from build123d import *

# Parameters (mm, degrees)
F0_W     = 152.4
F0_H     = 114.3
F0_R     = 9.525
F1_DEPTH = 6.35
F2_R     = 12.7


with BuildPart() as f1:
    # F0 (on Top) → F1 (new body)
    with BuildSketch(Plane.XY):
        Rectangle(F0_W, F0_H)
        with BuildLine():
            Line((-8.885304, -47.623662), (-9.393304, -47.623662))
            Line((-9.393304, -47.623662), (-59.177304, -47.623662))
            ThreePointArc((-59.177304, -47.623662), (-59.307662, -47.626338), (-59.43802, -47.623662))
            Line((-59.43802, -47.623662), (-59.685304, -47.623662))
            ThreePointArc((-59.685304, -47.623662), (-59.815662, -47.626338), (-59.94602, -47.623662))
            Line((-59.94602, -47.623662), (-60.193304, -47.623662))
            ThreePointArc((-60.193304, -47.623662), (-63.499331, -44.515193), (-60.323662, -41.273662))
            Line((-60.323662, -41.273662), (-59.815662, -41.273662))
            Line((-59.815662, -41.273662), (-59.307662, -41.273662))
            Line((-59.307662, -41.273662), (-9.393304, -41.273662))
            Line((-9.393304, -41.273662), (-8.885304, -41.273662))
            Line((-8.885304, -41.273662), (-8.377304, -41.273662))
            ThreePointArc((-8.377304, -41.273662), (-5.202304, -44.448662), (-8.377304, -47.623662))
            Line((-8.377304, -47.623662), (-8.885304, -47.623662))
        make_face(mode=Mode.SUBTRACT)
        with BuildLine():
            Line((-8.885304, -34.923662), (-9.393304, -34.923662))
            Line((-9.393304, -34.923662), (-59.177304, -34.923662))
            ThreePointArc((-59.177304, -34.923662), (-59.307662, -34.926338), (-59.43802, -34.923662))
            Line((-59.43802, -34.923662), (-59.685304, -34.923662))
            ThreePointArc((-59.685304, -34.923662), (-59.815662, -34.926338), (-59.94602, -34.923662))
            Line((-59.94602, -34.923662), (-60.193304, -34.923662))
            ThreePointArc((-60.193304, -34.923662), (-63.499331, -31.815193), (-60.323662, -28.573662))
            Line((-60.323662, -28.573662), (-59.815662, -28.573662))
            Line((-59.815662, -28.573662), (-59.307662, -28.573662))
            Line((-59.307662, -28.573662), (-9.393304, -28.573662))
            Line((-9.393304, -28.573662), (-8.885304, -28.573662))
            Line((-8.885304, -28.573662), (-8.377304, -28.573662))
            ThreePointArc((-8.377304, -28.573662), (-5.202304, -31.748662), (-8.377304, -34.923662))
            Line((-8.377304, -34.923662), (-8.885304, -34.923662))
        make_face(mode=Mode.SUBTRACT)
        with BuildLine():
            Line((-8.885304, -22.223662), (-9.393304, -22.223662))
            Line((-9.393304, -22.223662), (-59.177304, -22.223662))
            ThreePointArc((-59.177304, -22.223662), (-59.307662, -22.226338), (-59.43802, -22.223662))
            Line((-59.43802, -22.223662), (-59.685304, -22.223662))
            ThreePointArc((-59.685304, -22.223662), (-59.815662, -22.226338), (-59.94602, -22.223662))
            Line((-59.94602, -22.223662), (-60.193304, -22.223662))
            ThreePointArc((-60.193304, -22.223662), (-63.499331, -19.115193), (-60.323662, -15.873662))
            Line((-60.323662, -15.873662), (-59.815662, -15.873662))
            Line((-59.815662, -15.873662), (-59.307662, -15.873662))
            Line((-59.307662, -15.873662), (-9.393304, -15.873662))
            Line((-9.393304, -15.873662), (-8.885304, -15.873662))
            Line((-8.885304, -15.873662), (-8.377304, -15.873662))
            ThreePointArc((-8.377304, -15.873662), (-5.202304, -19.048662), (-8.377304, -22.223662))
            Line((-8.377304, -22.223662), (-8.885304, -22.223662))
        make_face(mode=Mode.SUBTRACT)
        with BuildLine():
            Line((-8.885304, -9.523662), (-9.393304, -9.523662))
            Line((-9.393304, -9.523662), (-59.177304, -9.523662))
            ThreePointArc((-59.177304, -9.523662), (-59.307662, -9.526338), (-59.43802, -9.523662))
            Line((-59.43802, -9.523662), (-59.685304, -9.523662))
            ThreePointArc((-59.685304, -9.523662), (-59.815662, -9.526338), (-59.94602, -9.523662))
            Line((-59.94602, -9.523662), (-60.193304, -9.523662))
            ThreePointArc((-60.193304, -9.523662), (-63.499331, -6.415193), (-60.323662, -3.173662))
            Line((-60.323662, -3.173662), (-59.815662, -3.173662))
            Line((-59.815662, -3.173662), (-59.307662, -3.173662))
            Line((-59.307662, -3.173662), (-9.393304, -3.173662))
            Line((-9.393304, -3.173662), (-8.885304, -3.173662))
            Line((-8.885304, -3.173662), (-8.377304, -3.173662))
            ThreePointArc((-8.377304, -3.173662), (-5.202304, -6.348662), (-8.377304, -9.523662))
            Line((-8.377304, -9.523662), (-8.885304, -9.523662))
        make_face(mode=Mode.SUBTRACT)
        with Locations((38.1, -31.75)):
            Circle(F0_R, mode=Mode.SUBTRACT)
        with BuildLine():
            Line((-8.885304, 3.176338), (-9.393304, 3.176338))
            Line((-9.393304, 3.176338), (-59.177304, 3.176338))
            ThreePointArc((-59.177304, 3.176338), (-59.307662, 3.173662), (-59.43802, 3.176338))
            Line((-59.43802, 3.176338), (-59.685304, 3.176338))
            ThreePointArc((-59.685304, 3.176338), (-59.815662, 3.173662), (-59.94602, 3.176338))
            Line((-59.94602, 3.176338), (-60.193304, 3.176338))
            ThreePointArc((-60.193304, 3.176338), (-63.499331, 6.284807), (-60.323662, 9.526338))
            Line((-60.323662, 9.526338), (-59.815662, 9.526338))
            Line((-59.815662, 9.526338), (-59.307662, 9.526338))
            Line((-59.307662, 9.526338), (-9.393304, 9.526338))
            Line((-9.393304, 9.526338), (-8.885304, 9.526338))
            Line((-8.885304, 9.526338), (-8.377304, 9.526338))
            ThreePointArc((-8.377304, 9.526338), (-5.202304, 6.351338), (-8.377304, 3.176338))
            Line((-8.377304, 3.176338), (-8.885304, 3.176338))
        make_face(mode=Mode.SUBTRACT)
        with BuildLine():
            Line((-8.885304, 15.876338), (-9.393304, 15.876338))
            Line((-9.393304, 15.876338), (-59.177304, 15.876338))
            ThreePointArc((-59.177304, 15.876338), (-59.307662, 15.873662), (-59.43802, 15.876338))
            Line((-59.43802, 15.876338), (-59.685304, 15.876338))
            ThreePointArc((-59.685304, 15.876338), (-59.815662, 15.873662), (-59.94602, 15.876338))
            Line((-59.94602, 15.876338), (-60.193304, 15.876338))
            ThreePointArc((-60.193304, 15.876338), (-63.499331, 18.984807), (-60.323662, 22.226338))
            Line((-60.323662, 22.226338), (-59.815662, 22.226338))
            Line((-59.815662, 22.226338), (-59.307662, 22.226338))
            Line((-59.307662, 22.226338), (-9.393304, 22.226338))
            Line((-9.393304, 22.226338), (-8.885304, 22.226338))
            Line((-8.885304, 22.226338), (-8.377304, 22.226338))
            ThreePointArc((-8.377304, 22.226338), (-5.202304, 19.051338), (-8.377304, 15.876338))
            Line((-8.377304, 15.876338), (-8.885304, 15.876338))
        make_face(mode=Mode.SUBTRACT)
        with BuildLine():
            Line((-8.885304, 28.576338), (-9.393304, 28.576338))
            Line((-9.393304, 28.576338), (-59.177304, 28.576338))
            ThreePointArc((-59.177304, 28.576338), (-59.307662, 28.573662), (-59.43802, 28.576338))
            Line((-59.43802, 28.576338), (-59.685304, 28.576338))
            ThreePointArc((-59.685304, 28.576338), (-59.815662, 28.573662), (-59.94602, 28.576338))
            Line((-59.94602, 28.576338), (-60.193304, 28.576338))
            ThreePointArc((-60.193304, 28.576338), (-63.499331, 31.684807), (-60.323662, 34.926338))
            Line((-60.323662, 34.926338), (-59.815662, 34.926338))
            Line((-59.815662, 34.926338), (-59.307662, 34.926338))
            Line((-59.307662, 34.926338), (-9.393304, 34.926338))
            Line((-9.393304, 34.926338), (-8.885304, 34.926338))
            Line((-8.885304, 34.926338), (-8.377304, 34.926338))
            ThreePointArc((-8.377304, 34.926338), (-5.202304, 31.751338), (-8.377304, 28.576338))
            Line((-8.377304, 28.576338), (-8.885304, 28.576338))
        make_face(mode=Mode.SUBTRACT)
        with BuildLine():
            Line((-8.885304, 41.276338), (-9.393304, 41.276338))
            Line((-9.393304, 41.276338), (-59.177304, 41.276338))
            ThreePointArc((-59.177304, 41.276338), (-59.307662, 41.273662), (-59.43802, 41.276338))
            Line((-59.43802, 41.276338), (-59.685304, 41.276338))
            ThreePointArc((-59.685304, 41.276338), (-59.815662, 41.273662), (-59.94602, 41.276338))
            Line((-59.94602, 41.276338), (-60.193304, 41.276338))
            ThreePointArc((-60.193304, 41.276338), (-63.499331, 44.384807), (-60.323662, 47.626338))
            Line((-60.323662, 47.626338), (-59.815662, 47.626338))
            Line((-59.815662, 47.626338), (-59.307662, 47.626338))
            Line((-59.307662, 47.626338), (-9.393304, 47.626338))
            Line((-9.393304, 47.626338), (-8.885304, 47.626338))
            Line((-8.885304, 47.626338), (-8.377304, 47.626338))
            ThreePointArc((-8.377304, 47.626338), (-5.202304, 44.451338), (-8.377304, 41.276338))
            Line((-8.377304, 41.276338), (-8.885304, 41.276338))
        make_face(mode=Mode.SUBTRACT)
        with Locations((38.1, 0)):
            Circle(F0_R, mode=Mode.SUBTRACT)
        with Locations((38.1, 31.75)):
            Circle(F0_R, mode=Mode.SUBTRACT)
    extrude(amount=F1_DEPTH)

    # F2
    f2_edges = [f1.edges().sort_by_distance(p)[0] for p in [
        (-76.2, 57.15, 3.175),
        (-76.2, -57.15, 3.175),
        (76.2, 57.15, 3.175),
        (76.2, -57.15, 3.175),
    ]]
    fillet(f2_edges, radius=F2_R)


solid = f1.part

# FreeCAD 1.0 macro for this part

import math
import FreeCAD as App
import Part
import Sketcher

V = App.Vector
Q = App.Units.Quantity


def edges_at(feature, points):
    """Names of the edges that pass closest to the given points."""
    edges = feature.Shape.Edges
    near = lambda p: min(range(len(edges)), key=lambda i: edges[i].distToShape(Part.Vertex(*p))[0])
    return sorted({f"Edge{near(p) + 1}" for p in points})

doc = App.newDocument("Part")
body = doc.addObject("PartDesign::Body", "Body")

# Sketch on XY plane
sketch1 = doc.addObject("Sketcher::SketchObject", "Sketch")
body.addObject(sketch1)
sketch1.AttachmentSupport = (doc.XY_Plane, [""])
sketch1.MapMode = "FlatFace"
sketch1.addGeometry([
    Part.LineSegment(V(-76.2, 57.15, 0), V(-76.2, -57.15, 0)),  # 0
    Part.LineSegment(V(-76.2, -57.15, 0), V(76.2, -57.15, 0)),  # 1
    Part.LineSegment(V(76.2, -57.15, 0), V(76.2, 57.15, 0)),  # 2
    Part.LineSegment(V(76.2, 57.15, 0), V(-76.2, 57.15, 0)),  # 3
    Part.LineSegment(V(-8.38, -47.62, 0), V(-59.18, -47.62, 0)),  # 4
    Part.ArcOfCircle(Part.Circle(V(-59.31, -44.45, 0), V(0, 0, 1), 3.18), math.radians(-92.35), math.radians(-87.65)),  # 5
    Part.LineSegment(V(-59.44, -47.62, 0), V(-59.69, -47.62, 0)),  # 6
    Part.ArcOfCircle(Part.Circle(V(-59.82, -44.45, 0), V(0, 0, 1), 3.18), math.radians(-92.35), math.radians(-87.65)),  # 7
    Part.LineSegment(V(-59.95, -47.62, 0), V(-60.19, -47.62, 0)),  # 8
    Part.ArcOfCircle(Part.Circle(V(-60.32, -44.45, 0), V(0, 0, 1), 3.18), math.radians(90), math.radians(272)),  # 9
    Part.LineSegment(V(-60.32, -41.27, 0), V(-8.38, -41.27, 0)),  # 10
    Part.ArcOfCircle(Part.Circle(V(-8.38, -44.45, 0), V(0, 0, 1), 3.17), math.radians(-90), math.radians(90)),  # 11
    Part.LineSegment(V(-8.38, -34.92, 0), V(-59.18, -34.92, 0)),  # 12
    Part.ArcOfCircle(Part.Circle(V(-59.31, -31.75, 0), V(0, 0, 1), 3.18), math.radians(-92.35), math.radians(-87.65)),  # 13
    Part.LineSegment(V(-59.44, -34.92, 0), V(-59.69, -34.92, 0)),  # 14
    Part.ArcOfCircle(Part.Circle(V(-59.82, -31.75, 0), V(0, 0, 1), 3.18), math.radians(-92.35), math.radians(-87.65)),  # 15
    Part.LineSegment(V(-59.95, -34.92, 0), V(-60.19, -34.92, 0)),  # 16
    Part.ArcOfCircle(Part.Circle(V(-60.32, -31.75, 0), V(0, 0, 1), 3.18), math.radians(90), math.radians(272)),  # 17
    Part.LineSegment(V(-60.32, -28.57, 0), V(-8.38, -28.57, 0)),  # 18
    Part.ArcOfCircle(Part.Circle(V(-8.38, -31.75, 0), V(0, 0, 1), 3.17), math.radians(-90), math.radians(90)),  # 19
    Part.LineSegment(V(-8.38, -22.22, 0), V(-59.18, -22.22, 0)),  # 20
    Part.ArcOfCircle(Part.Circle(V(-59.31, -19.05, 0), V(0, 0, 1), 3.18), math.radians(-92.35), math.radians(-87.65)),  # 21
    Part.LineSegment(V(-59.44, -22.22, 0), V(-59.69, -22.22, 0)),  # 22
    Part.ArcOfCircle(Part.Circle(V(-59.82, -19.05, 0), V(0, 0, 1), 3.18), math.radians(-92.35), math.radians(-87.65)),  # 23
    Part.LineSegment(V(-59.95, -22.22, 0), V(-60.19, -22.22, 0)),  # 24
    Part.ArcOfCircle(Part.Circle(V(-60.32, -19.05, 0), V(0, 0, 1), 3.18), math.radians(90), math.radians(272)),  # 25
    Part.LineSegment(V(-60.32, -15.87, 0), V(-8.38, -15.87, 0)),  # 26
    Part.ArcOfCircle(Part.Circle(V(-8.38, -19.05, 0), V(0, 0, 1), 3.17), math.radians(-90), math.radians(90)),  # 27
    Part.LineSegment(V(-8.38, -9.52, 0), V(-59.18, -9.52, 0)),  # 28
    Part.ArcOfCircle(Part.Circle(V(-59.31, -6.35, 0), V(0, 0, 1), 3.18), math.radians(-92.35), math.radians(-87.65)),  # 29
    Part.LineSegment(V(-59.44, -9.52, 0), V(-59.69, -9.52, 0)),  # 30
    Part.ArcOfCircle(Part.Circle(V(-59.82, -6.35, 0), V(0, 0, 1), 3.18), math.radians(-92.35), math.radians(-87.65)),  # 31
    Part.LineSegment(V(-59.95, -9.52, 0), V(-60.19, -9.52, 0)),  # 32
    Part.ArcOfCircle(Part.Circle(V(-60.32, -6.35, 0), V(0, 0, 1), 3.18), math.radians(90), math.radians(272)),  # 33
    Part.LineSegment(V(-60.32, -3.17, 0), V(-8.38, -3.17, 0)),  # 34
    Part.ArcOfCircle(Part.Circle(V(-8.38, -6.35, 0), V(0, 0, 1), 3.17), math.radians(-90), math.radians(90)),  # 35
    Part.Circle(V(38.1, -31.75, 0), V(0, 0, 1), 9.53),  # 36
    Part.LineSegment(V(-8.38, 3.18, 0), V(-59.18, 3.18, 0)),  # 37
    Part.ArcOfCircle(Part.Circle(V(-59.31, 6.35, 0), V(0, 0, 1), 3.18), math.radians(-92.35), math.radians(-87.65)),  # 38
    Part.LineSegment(V(-59.44, 3.18, 0), V(-59.69, 3.18, 0)),  # 39
    Part.ArcOfCircle(Part.Circle(V(-59.82, 6.35, 0), V(0, 0, 1), 3.18), math.radians(-92.35), math.radians(-87.65)),  # 40
    Part.LineSegment(V(-59.95, 3.18, 0), V(-60.19, 3.18, 0)),  # 41
    Part.ArcOfCircle(Part.Circle(V(-60.32, 6.35, 0), V(0, 0, 1), 3.18), math.radians(90), math.radians(272)),  # 42
    Part.LineSegment(V(-60.32, 9.53, 0), V(-8.38, 9.53, 0)),  # 43
    Part.ArcOfCircle(Part.Circle(V(-8.38, 6.35, 0), V(0, 0, 1), 3.17), math.radians(-90), math.radians(90)),  # 44
    Part.LineSegment(V(-8.38, 15.88, 0), V(-59.18, 15.88, 0)),  # 45
    Part.ArcOfCircle(Part.Circle(V(-59.31, 19.05, 0), V(0, 0, 1), 3.18), math.radians(-92.35), math.radians(-87.65)),  # 46
    Part.LineSegment(V(-59.44, 15.88, 0), V(-59.69, 15.88, 0)),  # 47
    Part.ArcOfCircle(Part.Circle(V(-59.82, 19.05, 0), V(0, 0, 1), 3.18), math.radians(-92.35), math.radians(-87.65)),  # 48
    Part.LineSegment(V(-59.95, 15.88, 0), V(-60.19, 15.88, 0)),  # 49
    Part.ArcOfCircle(Part.Circle(V(-60.32, 19.05, 0), V(0, 0, 1), 3.18), math.radians(90), math.radians(272)),  # 50
    Part.LineSegment(V(-60.32, 22.23, 0), V(-8.38, 22.23, 0)),  # 51
    Part.ArcOfCircle(Part.Circle(V(-8.38, 19.05, 0), V(0, 0, 1), 3.17), math.radians(-90), math.radians(90)),  # 52
    Part.LineSegment(V(-8.38, 28.58, 0), V(-59.18, 28.58, 0)),  # 53
    Part.ArcOfCircle(Part.Circle(V(-59.31, 31.75, 0), V(0, 0, 1), 3.18), math.radians(-92.35), math.radians(-87.65)),  # 54
    Part.LineSegment(V(-59.44, 28.58, 0), V(-59.69, 28.58, 0)),  # 55
    Part.ArcOfCircle(Part.Circle(V(-59.82, 31.75, 0), V(0, 0, 1), 3.18), math.radians(-92.35), math.radians(-87.65)),  # 56
    Part.LineSegment(V(-59.95, 28.58, 0), V(-60.19, 28.58, 0)),  # 57
    Part.ArcOfCircle(Part.Circle(V(-60.32, 31.75, 0), V(0, 0, 1), 3.18), math.radians(90), math.radians(272)),  # 58
    Part.LineSegment(V(-60.32, 34.93, 0), V(-8.38, 34.93, 0)),  # 59
    Part.ArcOfCircle(Part.Circle(V(-8.38, 31.75, 0), V(0, 0, 1), 3.17), math.radians(-90), math.radians(90)),  # 60
    Part.LineSegment(V(-8.38, 41.28, 0), V(-59.18, 41.28, 0)),  # 61
    Part.ArcOfCircle(Part.Circle(V(-59.31, 44.45, 0), V(0, 0, 1), 3.18), math.radians(-92.35), math.radians(-87.65)),  # 62
    Part.LineSegment(V(-59.44, 41.28, 0), V(-59.69, 41.28, 0)),  # 63
    Part.ArcOfCircle(Part.Circle(V(-59.82, 44.45, 0), V(0, 0, 1), 3.18), math.radians(-92.35), math.radians(-87.65)),  # 64
    Part.LineSegment(V(-59.95, 41.28, 0), V(-60.19, 41.28, 0)),  # 65
    Part.ArcOfCircle(Part.Circle(V(-60.32, 44.45, 0), V(0, 0, 1), 3.18), math.radians(90), math.radians(272)),  # 66
    Part.LineSegment(V(-60.32, 47.63, 0), V(-8.38, 47.63, 0)),  # 67
    Part.ArcOfCircle(Part.Circle(V(-8.38, 44.45, 0), V(0, 0, 1), 3.17), math.radians(-90), math.radians(90)),  # 68
    Part.Circle(V(38.1, 0, 0), V(0, 0, 1), 9.53),  # 69
    Part.Circle(V(38.1, 31.75, 0), V(0, 0, 1), 9.53),  # 70
], False)
sketch1.addConstraint([
    Sketcher.Constraint("Coincident", 0, 2, 1, 1),
    Sketcher.Constraint("Coincident", 1, 2, 2, 1),
    Sketcher.Constraint("Coincident", 2, 2, 3, 1),
    Sketcher.Constraint("Coincident", 3, 2, 0, 1),
    Sketcher.Constraint("Coincident", 4, 2, 5, 2),
    Sketcher.Constraint("Coincident", 5, 1, 6, 1),
    Sketcher.Constraint("Coincident", 6, 2, 7, 2),
    Sketcher.Constraint("Coincident", 7, 1, 8, 1),
    Sketcher.Constraint("Coincident", 8, 2, 9, 2),
    Sketcher.Constraint("Tangent", 9, 1, 10, 1),
    Sketcher.Constraint("Tangent", 10, 2, 11, 2),
    Sketcher.Constraint("Tangent", 11, 1, 4, 1),
    Sketcher.Constraint("Coincident", 12, 2, 13, 2),
    Sketcher.Constraint("Coincident", 13, 1, 14, 1),
    Sketcher.Constraint("Coincident", 14, 2, 15, 2),
    Sketcher.Constraint("Coincident", 15, 1, 16, 1),
    Sketcher.Constraint("Coincident", 16, 2, 17, 2),
    Sketcher.Constraint("Tangent", 17, 1, 18, 1),
    Sketcher.Constraint("Tangent", 18, 2, 19, 2),
    Sketcher.Constraint("Tangent", 19, 1, 12, 1),
    Sketcher.Constraint("Coincident", 20, 2, 21, 2),
    Sketcher.Constraint("Coincident", 21, 1, 22, 1),
    Sketcher.Constraint("Coincident", 22, 2, 23, 2),
    Sketcher.Constraint("Coincident", 23, 1, 24, 1),
    Sketcher.Constraint("Coincident", 24, 2, 25, 2),
    Sketcher.Constraint("Tangent", 25, 1, 26, 1),
    Sketcher.Constraint("Tangent", 26, 2, 27, 2),
    Sketcher.Constraint("Tangent", 27, 1, 20, 1),
    Sketcher.Constraint("Coincident", 28, 2, 29, 2),
    Sketcher.Constraint("Coincident", 29, 1, 30, 1),
    Sketcher.Constraint("Coincident", 30, 2, 31, 2),
    Sketcher.Constraint("Coincident", 31, 1, 32, 1),
    Sketcher.Constraint("Coincident", 32, 2, 33, 2),
    Sketcher.Constraint("Tangent", 33, 1, 34, 1),
    Sketcher.Constraint("Tangent", 34, 2, 35, 2),
    Sketcher.Constraint("Tangent", 35, 1, 28, 1),
    Sketcher.Constraint("Coincident", 37, 2, 38, 2),
    Sketcher.Constraint("Coincident", 38, 1, 39, 1),
    Sketcher.Constraint("Coincident", 39, 2, 40, 2),
    Sketcher.Constraint("Coincident", 40, 1, 41, 1),
    Sketcher.Constraint("Coincident", 41, 2, 42, 2),
    Sketcher.Constraint("Tangent", 42, 1, 43, 1),
    Sketcher.Constraint("Tangent", 43, 2, 44, 2),
    Sketcher.Constraint("Tangent", 44, 1, 37, 1),
    Sketcher.Constraint("Coincident", 45, 2, 46, 2),
    Sketcher.Constraint("Coincident", 46, 1, 47, 1),
    Sketcher.Constraint("Coincident", 47, 2, 48, 2),
    Sketcher.Constraint("Coincident", 48, 1, 49, 1),
    Sketcher.Constraint("Coincident", 49, 2, 50, 2),
    Sketcher.Constraint("Tangent", 50, 1, 51, 1),
    Sketcher.Constraint("Tangent", 51, 2, 52, 2),
    Sketcher.Constraint("Tangent", 52, 1, 45, 1),
    Sketcher.Constraint("Coincident", 53, 2, 54, 2),
    Sketcher.Constraint("Coincident", 54, 1, 55, 1),
    Sketcher.Constraint("Coincident", 55, 2, 56, 2),
    Sketcher.Constraint("Coincident", 56, 1, 57, 1),
    Sketcher.Constraint("Coincident", 57, 2, 58, 2),
    Sketcher.Constraint("Tangent", 58, 1, 59, 1),
    Sketcher.Constraint("Tangent", 59, 2, 60, 2),
    Sketcher.Constraint("Tangent", 60, 1, 53, 1),
    Sketcher.Constraint("Coincident", 61, 2, 62, 2),
    Sketcher.Constraint("Coincident", 62, 1, 63, 1),
    Sketcher.Constraint("Coincident", 63, 2, 64, 2),
    Sketcher.Constraint("Coincident", 64, 1, 65, 1),
    Sketcher.Constraint("Coincident", 65, 2, 66, 2),
    Sketcher.Constraint("Tangent", 66, 1, 67, 1),
    Sketcher.Constraint("Tangent", 67, 2, 68, 2),
    Sketcher.Constraint("Tangent", 68, 1, 61, 1),
    Sketcher.Constraint("Vertical", 0),
    Sketcher.Constraint("Horizontal", 1),
    Sketcher.Constraint("Vertical", 2),
    Sketcher.Constraint("Horizontal", 3),
    Sketcher.Constraint("Horizontal", 4),
    Sketcher.Constraint("Horizontal", 6),
    Sketcher.Constraint("Horizontal", 8),
    Sketcher.Constraint("Horizontal", 10),
    Sketcher.Constraint("Horizontal", 12),
    Sketcher.Constraint("Horizontal", 14),
    Sketcher.Constraint("Horizontal", 16),
    Sketcher.Constraint("Horizontal", 18),
    Sketcher.Constraint("Horizontal", 20),
    Sketcher.Constraint("Horizontal", 22),
    Sketcher.Constraint("Horizontal", 24),
    Sketcher.Constraint("Horizontal", 26),
    Sketcher.Constraint("Horizontal", 28),
    Sketcher.Constraint("Horizontal", 30),
    Sketcher.Constraint("Horizontal", 32),
    Sketcher.Constraint("Horizontal", 34),
    Sketcher.Constraint("Horizontal", 37),
    Sketcher.Constraint("Horizontal", 39),
    Sketcher.Constraint("Horizontal", 41),
    Sketcher.Constraint("Horizontal", 43),
    Sketcher.Constraint("Horizontal", 45),
    Sketcher.Constraint("Horizontal", 47),
    Sketcher.Constraint("Horizontal", 49),
    Sketcher.Constraint("Horizontal", 51),
    Sketcher.Constraint("Horizontal", 53),
    Sketcher.Constraint("Horizontal", 55),
    Sketcher.Constraint("Horizontal", 57),
    Sketcher.Constraint("Horizontal", 59),
    Sketcher.Constraint("Horizontal", 61),
    Sketcher.Constraint("Horizontal", 63),
    Sketcher.Constraint("Horizontal", 65),
    Sketcher.Constraint("Horizontal", 67),
    Sketcher.Constraint("Equal", 5, 7),
    Sketcher.Constraint("Equal", 7, 13),
    Sketcher.Constraint("Equal", 13, 15),
    Sketcher.Constraint("Equal", 9, 17),
    Sketcher.Constraint("Equal", 11, 19),
    Sketcher.Constraint("Equal", 15, 21),
    Sketcher.Constraint("Equal", 21, 23),
    Sketcher.Constraint("Equal", 17, 25),
    Sketcher.Constraint("Equal", 19, 27),
    Sketcher.Constraint("Equal", 23, 29),
    Sketcher.Constraint("Equal", 29, 31),
    Sketcher.Constraint("Equal", 25, 33),
    Sketcher.Constraint("Equal", 27, 35),
    Sketcher.Constraint("Equal", 31, 38),
    Sketcher.Constraint("Equal", 38, 40),
    Sketcher.Constraint("Equal", 33, 42),
    Sketcher.Constraint("Equal", 35, 44),
    Sketcher.Constraint("Equal", 40, 46),
    Sketcher.Constraint("Equal", 46, 48),
    Sketcher.Constraint("Equal", 42, 50),
    Sketcher.Constraint("Equal", 44, 52),
    Sketcher.Constraint("Equal", 48, 54),
    Sketcher.Constraint("Equal", 54, 56),
    Sketcher.Constraint("Equal", 50, 58),
    Sketcher.Constraint("Equal", 52, 60),
    Sketcher.Constraint("Equal", 56, 62),
    Sketcher.Constraint("Equal", 62, 64),
    Sketcher.Constraint("Equal", 58, 66),
    Sketcher.Constraint("Equal", 60, 68),
    Sketcher.Constraint("Equal", 36, 69),
    Sketcher.Constraint("Equal", 69, 70),
    Sketcher.Constraint("Symmetric", 0, 2, 2, 2, -1, 1),
    Sketcher.Constraint("Symmetric", 33, 3, 42, 3, -1),
    Sketcher.Constraint("Symmetric", 25, 3, 50, 3, -1),
    Sketcher.Constraint("Symmetric", 17, 3, 58, 3, -1),
    Sketcher.Constraint("Symmetric", 9, 3, 66, 3, -1),
    Sketcher.Constraint("Symmetric", 36, 3, 70, 3, -1),
    Sketcher.Constraint("PointOnObject", 69, 3, -1),
    Sketcher.Constraint("Horizontal", 5, 3, 7, 3),
    Sketcher.Constraint("Horizontal", 13, 3, 15, 3),
    Sketcher.Constraint("Horizontal", 21, 3, 23, 3),
    Sketcher.Constraint("Horizontal", 29, 3, 31, 3),
    Sketcher.Constraint("Horizontal", 17, 3, 36, 3),
    Sketcher.Constraint("Horizontal", 38, 3, 40, 3),
    Sketcher.Constraint("Horizontal", 46, 3, 48, 3),
    Sketcher.Constraint("Horizontal", 54, 3, 56, 3),
    Sketcher.Constraint("Horizontal", 62, 3, 64, 3),
    Sketcher.Constraint("Horizontal", 4, 2, 5, 1),
    Sketcher.Constraint("Horizontal", 6, 2, 7, 1),
    Sketcher.Constraint("Horizontal", 12, 2, 13, 1),
    Sketcher.Constraint("Horizontal", 14, 2, 15, 1),
    Sketcher.Constraint("Horizontal", 20, 2, 21, 1),
    Sketcher.Constraint("Horizontal", 22, 2, 23, 1),
    Sketcher.Constraint("Horizontal", 28, 2, 29, 1),
    Sketcher.Constraint("Horizontal", 30, 2, 31, 1),
    Sketcher.Constraint("Horizontal", 37, 2, 38, 1),
    Sketcher.Constraint("Horizontal", 39, 2, 40, 1),
    Sketcher.Constraint("Horizontal", 45, 2, 46, 1),
    Sketcher.Constraint("Horizontal", 47, 2, 48, 1),
    Sketcher.Constraint("Horizontal", 53, 2, 54, 1),
    Sketcher.Constraint("Horizontal", 55, 2, 56, 1),
    Sketcher.Constraint("Horizontal", 61, 2, 62, 1),
    Sketcher.Constraint("Horizontal", 63, 2, 64, 1),
    Sketcher.Constraint("Vertical", 5, 3, 13, 3),
    Sketcher.Constraint("Vertical", 7, 3, 15, 3),
    Sketcher.Constraint("Vertical", 9, 3, 17, 3),
    Sketcher.Constraint("Vertical", 11, 3, 19, 3),
    Sketcher.Constraint("Vertical", 13, 3, 21, 3),
    Sketcher.Constraint("Vertical", 15, 3, 23, 3),
    Sketcher.Constraint("Vertical", 17, 3, 25, 3),
    Sketcher.Constraint("Vertical", 19, 3, 27, 3),
    Sketcher.Constraint("Vertical", 21, 3, 29, 3),
    Sketcher.Constraint("Vertical", 23, 3, 31, 3),
    Sketcher.Constraint("Vertical", 25, 3, 33, 3),
    Sketcher.Constraint("Vertical", 27, 3, 35, 3),
    Sketcher.Constraint("Vertical", 29, 3, 38, 3),
    Sketcher.Constraint("Vertical", 31, 3, 40, 3),
    Sketcher.Constraint("Vertical", 35, 3, 44, 3),
    Sketcher.Constraint("Vertical", 38, 3, 46, 3),
    Sketcher.Constraint("Vertical", 40, 3, 48, 3),
    Sketcher.Constraint("Vertical", 44, 3, 52, 3),
    Sketcher.Constraint("Vertical", 46, 3, 54, 3),
    Sketcher.Constraint("Vertical", 48, 3, 56, 3),
    Sketcher.Constraint("Vertical", 52, 3, 60, 3),
    Sketcher.Constraint("Vertical", 54, 3, 62, 3),
    Sketcher.Constraint("Vertical", 56, 3, 64, 3),
    Sketcher.Constraint("Vertical", 60, 3, 68, 3),
    Sketcher.Constraint("Vertical", 36, 3, 69, 3),
    Sketcher.Constraint("Vertical", 4, 2, 12, 2),
    Sketcher.Constraint("Vertical", 12, 2, 20, 2),
    Sketcher.Constraint("Vertical", 20, 2, 28, 2),
    Sketcher.Constraint("Vertical", 28, 2, 37, 2),
    Sketcher.Constraint("Vertical", 37, 2, 45, 2),
    Sketcher.Constraint("Vertical", 45, 2, 53, 2),
    Sketcher.Constraint("Vertical", 53, 2, 61, 2),
    Sketcher.Constraint("Equal", 6, 8),
    Sketcher.Constraint("Diameter", 36, Q("0.75 in")),
    Sketcher.Constraint("DistanceX", 1, 1, 1, 2, Q("6 in")),
    Sketcher.Constraint("DistanceX", 4, 2, 4, 1, Q("2 in")),
    Sketcher.Constraint("DistanceY", 0, 2, 0, 1, Q("4.5 in")),
    Sketcher.Constraint("Radius", 11, Q("0.125 in")),
    Sketcher.Constraint("DistanceX", -1, 1, 36, 3, Q("1.5 in")),
    Sketcher.Constraint("DistanceY", 9, 3, -1, 1, Q("1.75 in")),
    Sketcher.Constraint("DistanceY", 17, 3, -1, 1, Q("1.25 in")),
    Sketcher.Constraint("DistanceY", 25, 3, -1, 1, Q("0.75 in")),
    Sketcher.Constraint("DistanceY", 33, 3, -1, 1, Q("0.25 in")),
    Sketcher.Constraint("Radius", 5, Q("3.176452 mm")),
    Sketcher.Constraint("Radius", 9, Q("3.176338 mm")),
    Sketcher.Constraint("DistanceX", 6, 2, 6, 1, Q("0.247284 mm")),
    Sketcher.Constraint("DistanceX", 10, 1, 10, 2, Q("51.946358 mm")),
    Sketcher.Constraint("DistanceX", 5, 1, -1, 1, Q("59.43802 mm")),
])
pad1 = doc.addObject("PartDesign::Pad", "Pad")
body.addObject(pad1)
pad1.Profile = sketch1
pad1.Length = Q("0.25 in")
doc.recompute()

fillet = doc.addObject("PartDesign::Fillet", "Fillet")
body.addObject(fillet)
fillet.Base = (pad1, edges_at(pad1, [
    (-76.2, 57.15, 3.175),
    (-76.2, -57.15, 3.175),
    (76.2, 57.15, 3.175),
    (76.2, -57.15, 3.175),
]))
fillet.Radius = Q("0.5 in")

doc.recompute()
